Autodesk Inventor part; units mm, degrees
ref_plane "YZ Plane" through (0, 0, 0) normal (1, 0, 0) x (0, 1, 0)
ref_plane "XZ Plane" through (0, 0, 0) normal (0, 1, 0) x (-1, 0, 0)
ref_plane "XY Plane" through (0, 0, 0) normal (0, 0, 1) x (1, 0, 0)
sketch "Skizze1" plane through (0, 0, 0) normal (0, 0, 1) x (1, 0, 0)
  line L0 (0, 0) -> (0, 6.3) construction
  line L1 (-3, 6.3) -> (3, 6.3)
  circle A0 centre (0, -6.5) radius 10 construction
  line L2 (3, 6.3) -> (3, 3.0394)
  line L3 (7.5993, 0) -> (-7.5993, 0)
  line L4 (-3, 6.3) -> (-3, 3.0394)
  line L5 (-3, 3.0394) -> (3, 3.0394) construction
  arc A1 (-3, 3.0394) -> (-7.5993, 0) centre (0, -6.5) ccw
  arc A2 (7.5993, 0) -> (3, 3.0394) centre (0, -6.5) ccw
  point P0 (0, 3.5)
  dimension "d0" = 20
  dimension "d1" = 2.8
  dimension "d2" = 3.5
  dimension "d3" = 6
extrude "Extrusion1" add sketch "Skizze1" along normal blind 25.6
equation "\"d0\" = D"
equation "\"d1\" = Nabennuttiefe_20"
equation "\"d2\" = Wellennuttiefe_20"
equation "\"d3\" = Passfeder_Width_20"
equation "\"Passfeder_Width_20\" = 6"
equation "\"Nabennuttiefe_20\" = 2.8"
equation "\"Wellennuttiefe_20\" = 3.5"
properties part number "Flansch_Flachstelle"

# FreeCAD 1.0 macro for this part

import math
import FreeCAD as App
import Part
import Sketcher
Q = App.Units.Quantity

doc = App.newDocument("Part")
body = doc.addObject("PartDesign::Body", "Body")

# Sketch on XY plane
sketch1 = body.newObject("Sketcher::SketchObject", "Sketch")
sketch1.AttachmentSupport = (doc.getObject("XY_Plane"), [""])
sketch1.MapMode = "FlatFace"
sketch1.addGeometry([
    Part.LineSegment(App.Vector(3, 6.3, 0), App.Vector(-3, 6.3, 0)),  # 0
    Part.LineSegment(App.Vector(-3, 6.3, 0), App.Vector(-3, 3, 0)),  # 1
    Part.ArcOfCircle(Part.Circle(App.Vector(0, -6.5, 0), App.Vector(0, 0, 1), 10), math.radians(107), math.radians(139)),  # 2
    Part.LineSegment(App.Vector(-7.6, 0, 0), App.Vector(7.6, 0, 0)),  # 3
    Part.ArcOfCircle(Part.Circle(App.Vector(0, -6.5, 0), App.Vector(0, 0, 1), 10), math.radians(41), math.radians(73)),  # 4
    Part.LineSegment(App.Vector(3, 3, 0), App.Vector(3, 6.3, 0)),  # 5
], False)
sketch1.addConstraint([
    Sketcher.Constraint("Coincident", 0, 2, 1, 1),
    Sketcher.Constraint("Coincident", 1, 2, 2, 1),
    Sketcher.Constraint("Coincident", 2, 2, 3, 1),
    Sketcher.Constraint("Coincident", 3, 2, 4, 1),
    Sketcher.Constraint("Coincident", 4, 2, 5, 1),
    Sketcher.Constraint("Coincident", 5, 2, 0, 1),
    Sketcher.Constraint("Horizontal", 0),
    Sketcher.Constraint("Vertical", 1),
    Sketcher.Constraint("Horizontal", 3),
    Sketcher.Constraint("Vertical", 5),
    Sketcher.Constraint("Coincident", 4, 3, 2, 3),
    Sketcher.Constraint("Equal", 2, 4),
    Sketcher.Constraint("Symmetric", 2, 2, 3, 2, -1, 1),
    Sketcher.Constraint("Horizontal", 1, 2, 4, 2),
    Sketcher.Constraint("Radius", 2, Q("10 mm")),
    Sketcher.Constraint("DistanceX", 0, 2, 0, 1, Q("6 mm")),
    Sketcher.Constraint("DistanceY", 2, 3, -1, 1, Q("6.5 mm")),
    Sketcher.Constraint("DistanceY", -1, 1, 0, 2, Q("6.3 mm")),
])
pad1 = body.newObject("PartDesign::Pad", "Pad")
pad1.Profile = sketch1
pad1.Length = 25.6

doc.recompute()
